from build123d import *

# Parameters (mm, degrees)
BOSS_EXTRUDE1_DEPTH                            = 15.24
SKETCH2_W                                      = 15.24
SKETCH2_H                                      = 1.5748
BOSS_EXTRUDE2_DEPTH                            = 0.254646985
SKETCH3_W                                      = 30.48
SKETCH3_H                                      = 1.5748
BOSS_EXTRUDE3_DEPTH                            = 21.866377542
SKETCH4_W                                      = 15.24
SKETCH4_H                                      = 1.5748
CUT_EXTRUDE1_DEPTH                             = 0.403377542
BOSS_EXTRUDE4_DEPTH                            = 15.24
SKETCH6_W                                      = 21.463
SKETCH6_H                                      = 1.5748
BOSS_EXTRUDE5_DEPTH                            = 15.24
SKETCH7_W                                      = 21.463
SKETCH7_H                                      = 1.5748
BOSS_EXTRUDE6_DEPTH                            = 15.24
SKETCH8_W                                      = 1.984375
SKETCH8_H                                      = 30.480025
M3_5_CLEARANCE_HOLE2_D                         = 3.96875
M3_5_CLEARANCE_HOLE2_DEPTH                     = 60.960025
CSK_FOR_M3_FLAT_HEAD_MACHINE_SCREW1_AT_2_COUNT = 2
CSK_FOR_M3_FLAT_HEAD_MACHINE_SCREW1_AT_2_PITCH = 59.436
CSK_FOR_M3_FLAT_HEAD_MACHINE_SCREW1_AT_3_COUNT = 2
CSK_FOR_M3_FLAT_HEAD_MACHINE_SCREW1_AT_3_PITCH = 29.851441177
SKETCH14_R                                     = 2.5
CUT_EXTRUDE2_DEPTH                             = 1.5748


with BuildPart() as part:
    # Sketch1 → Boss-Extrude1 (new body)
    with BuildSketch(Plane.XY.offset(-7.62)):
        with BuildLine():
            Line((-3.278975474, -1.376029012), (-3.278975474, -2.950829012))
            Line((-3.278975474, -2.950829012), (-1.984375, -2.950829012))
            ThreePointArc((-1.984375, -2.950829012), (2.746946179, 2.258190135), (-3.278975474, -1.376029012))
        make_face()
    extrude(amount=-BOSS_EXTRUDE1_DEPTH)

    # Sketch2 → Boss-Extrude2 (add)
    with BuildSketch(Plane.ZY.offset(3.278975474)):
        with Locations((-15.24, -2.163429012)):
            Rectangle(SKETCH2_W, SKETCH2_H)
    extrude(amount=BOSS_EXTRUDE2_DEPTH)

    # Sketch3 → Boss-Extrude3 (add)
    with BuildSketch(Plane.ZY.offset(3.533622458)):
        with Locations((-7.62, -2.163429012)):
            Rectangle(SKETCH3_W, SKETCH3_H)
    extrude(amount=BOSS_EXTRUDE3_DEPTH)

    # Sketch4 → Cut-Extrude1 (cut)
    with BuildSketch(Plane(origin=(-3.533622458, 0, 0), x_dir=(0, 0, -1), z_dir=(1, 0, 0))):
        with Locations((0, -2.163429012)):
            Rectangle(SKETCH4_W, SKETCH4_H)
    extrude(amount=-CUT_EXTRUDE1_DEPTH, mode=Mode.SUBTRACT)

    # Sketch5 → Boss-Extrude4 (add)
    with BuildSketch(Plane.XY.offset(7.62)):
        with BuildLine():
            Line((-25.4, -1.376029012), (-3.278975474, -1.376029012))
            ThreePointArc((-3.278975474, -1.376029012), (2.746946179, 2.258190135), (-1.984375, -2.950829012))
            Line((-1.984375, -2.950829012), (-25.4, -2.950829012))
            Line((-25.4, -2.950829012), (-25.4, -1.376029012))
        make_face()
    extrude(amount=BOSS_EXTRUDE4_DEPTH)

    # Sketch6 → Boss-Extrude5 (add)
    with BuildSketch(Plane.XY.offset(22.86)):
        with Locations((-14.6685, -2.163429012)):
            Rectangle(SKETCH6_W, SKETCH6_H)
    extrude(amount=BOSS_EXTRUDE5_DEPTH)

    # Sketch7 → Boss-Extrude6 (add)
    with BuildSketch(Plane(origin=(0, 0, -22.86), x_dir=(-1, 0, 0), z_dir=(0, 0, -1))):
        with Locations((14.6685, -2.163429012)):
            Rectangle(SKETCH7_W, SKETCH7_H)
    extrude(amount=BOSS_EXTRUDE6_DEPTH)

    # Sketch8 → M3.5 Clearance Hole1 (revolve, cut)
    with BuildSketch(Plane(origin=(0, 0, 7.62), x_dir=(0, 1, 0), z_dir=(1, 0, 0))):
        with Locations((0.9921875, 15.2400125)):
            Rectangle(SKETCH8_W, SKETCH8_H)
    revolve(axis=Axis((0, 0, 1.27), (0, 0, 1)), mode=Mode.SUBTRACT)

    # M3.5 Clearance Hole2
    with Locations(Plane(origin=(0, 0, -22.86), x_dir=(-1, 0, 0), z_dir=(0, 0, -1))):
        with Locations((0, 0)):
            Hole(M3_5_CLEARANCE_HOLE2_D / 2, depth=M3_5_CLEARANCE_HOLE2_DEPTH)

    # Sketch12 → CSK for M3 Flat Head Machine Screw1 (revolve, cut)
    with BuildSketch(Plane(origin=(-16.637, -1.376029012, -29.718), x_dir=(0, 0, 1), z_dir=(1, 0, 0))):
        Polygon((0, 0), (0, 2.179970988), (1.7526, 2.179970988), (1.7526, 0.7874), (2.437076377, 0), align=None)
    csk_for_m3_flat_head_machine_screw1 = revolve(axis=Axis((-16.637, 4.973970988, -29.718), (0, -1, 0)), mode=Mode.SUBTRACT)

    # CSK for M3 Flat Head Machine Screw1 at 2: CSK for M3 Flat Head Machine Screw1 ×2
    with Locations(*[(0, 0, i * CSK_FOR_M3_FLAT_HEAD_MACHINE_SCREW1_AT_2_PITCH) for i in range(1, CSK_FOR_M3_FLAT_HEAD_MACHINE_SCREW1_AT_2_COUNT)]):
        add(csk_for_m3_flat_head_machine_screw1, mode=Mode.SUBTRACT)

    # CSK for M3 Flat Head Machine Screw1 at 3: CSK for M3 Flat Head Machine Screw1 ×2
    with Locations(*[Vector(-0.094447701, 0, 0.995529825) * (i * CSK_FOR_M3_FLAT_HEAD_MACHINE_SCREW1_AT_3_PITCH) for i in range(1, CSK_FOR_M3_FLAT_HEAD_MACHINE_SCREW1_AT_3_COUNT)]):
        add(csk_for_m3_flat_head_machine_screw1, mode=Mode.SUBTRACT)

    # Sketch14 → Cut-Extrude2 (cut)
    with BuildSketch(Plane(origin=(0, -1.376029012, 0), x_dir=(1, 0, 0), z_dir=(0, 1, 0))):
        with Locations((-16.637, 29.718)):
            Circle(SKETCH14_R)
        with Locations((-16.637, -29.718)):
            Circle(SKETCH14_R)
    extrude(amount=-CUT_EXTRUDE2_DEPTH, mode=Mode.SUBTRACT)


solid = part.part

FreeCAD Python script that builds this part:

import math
import FreeCAD as App
import Part
import Sketcher

V = App.Vector
Q = App.Units.Quantity


def add_polygon(sketch, points):
    """Adds a closed chain of lines whose ends are joined by coincident constraints."""
    first, n = sketch.GeometryCount, len(points)
    for a, b in zip(points, points[1:] + points[:1]):
        sketch.addGeometry(Part.LineSegment(App.Vector(*a, 0), App.Vector(*b, 0)), False)
    for i in range(n):
        sketch.addConstraint(Sketcher.Constraint("Coincident", first + i, 2, first + (i + 1) % n, 1))

doc = App.newDocument("Part")
body = doc.addObject("PartDesign::Body", "Body")

# Sketch on XY plane
sketch1 = body.newObject("Sketcher::SketchObject", "Sketch")
sketch1.AttachmentSupport = (doc.getObject("XY_Plane"), [""])
sketch1.MapMode = "FlatFace"
sketch1.AttachmentOffset = App.Placement(V(0, 0, -0.3 * 25.4), App.Rotation())
sketch1.addGeometry(Part.LineSegment(V(-3.3, -1.4, 0), V(-3.3, -3, 0)), False)
sketch1.addGeometry(Part.LineSegment(V(-3.3, -3, 0), V(-2, -3, 0)), False)
sketch1.addGeometry(Part.ArcOfCircle(Part.Circle(V(0, 0, 0), V(0, 0, 1), 3.6), math.radians(-124), math.radians(203)), False)
sketch1.addConstraint(Sketcher.Constraint("Coincident", 0, 2, 1, 1))
sketch1.addConstraint(Sketcher.Constraint("Coincident", 1, 2, 2, 1))
sketch1.addConstraint(Sketcher.Constraint("Coincident", 2, 2, 0, 1))
sketch1.addConstraint(Sketcher.Constraint("Vertical", 0))
sketch1.addConstraint(Sketcher.Constraint("Horizontal", 1))
sketch1.addConstraint(Sketcher.Constraint("Coincident", 2, 3, -1, 1))
sketch1.addConstraint(Sketcher.Constraint("Radius", 2, Q("0.14 in")))
sketch1.addConstraint(Sketcher.Constraint("DistanceY", 0, 2, 0, 1, Q("0.062 in")))
sketch1.addConstraint(Sketcher.Constraint("DistanceX", 1, 2, -1, 1, Q("0.078125 in")))
pad1 = body.newObject("PartDesign::Pad", "Pad")
pad1.Profile = sketch1
pad1.Length = Q("0.6 in")
pad1.Reversed = True

# Sketch on YZ plane
sketch2 = body.newObject("Sketcher::SketchObject", "Sketch001")
sketch2.AttachmentSupport = (doc.getObject("YZ_Plane"), [""])
sketch2.MapMode = "FlatFace"
sketch2.AttachmentOffset = App.Placement(V(0, 0, -3.278975), App.Rotation())
add_polygon(sketch2, [(-1.4, -22.9), (-3, -22.9), (-3, -7.6), (-1.4, -7.6)])  # lines 0-3
sketch2.addConstraint(Sketcher.Constraint("Horizontal", 0))
sketch2.addConstraint(Sketcher.Constraint("Vertical", 1))
sketch2.addConstraint(Sketcher.Constraint("Horizontal", 2))
sketch2.addConstraint(Sketcher.Constraint("Vertical", 3))
sketch2.addConstraint(Sketcher.Constraint("DistanceY", 1, 1, 1, 2, Q("0.6 in")))
sketch2.addConstraint(Sketcher.Constraint("DistanceY", 0, 2, -1, 1, Q("0.9 in")))
sketch2.addConstraint(Sketcher.Constraint("DistanceX", 0, 2, 0, 1, Q("0.062 in")))
sketch2.addConstraint(Sketcher.Constraint("DistanceX", 0, 2, -1, 1, Q("2.950829 mm")))
pad2 = body.newObject("PartDesign::Pad", "Pad001")
pad2.Profile = sketch2
pad2.Length = 0.254647
pad2.Reversed = True

# Sketch on YZ plane
sketch3 = body.newObject("Sketcher::SketchObject", "Sketch002")
sketch3.AttachmentSupport = (doc.getObject("YZ_Plane"), [""])
sketch3.MapMode = "FlatFace"
sketch3.AttachmentOffset = App.Placement(V(0, 0, -3.533622), App.Rotation())
add_polygon(sketch3, [(-1.4, -22.9), (-3, -22.9), (-3, 7.6), (-1.4, 7.6)])  # lines 0-3
sketch3.addConstraint(Sketcher.Constraint("Horizontal", 0))
sketch3.addConstraint(Sketcher.Constraint("Vertical", 1))
sketch3.addConstraint(Sketcher.Constraint("Horizontal", 2))
sketch3.addConstraint(Sketcher.Constraint("Vertical", 3))
sketch3.addConstraint(Sketcher.Constraint("DistanceY", 1, 1, 1, 2, Q("1.2 in")))
sketch3.addConstraint(Sketcher.Constraint("DistanceY", 0, 2, -1, 1, Q("0.9 in")))
sketch3.addConstraint(Sketcher.Constraint("DistanceX", 0, 2, 0, 1, Q("0.062 in")))
sketch3.addConstraint(Sketcher.Constraint("DistanceX", 0, 2, -1, 1, Q("2.950829 mm")))
pad3 = body.newObject("PartDesign::Pad", "Pad002")
pad3.Profile = sketch3
pad3.Length = 21.866378
pad3.Reversed = True

# Sketch on YZ plane
sketch4 = body.newObject("Sketcher::SketchObject", "Sketch003")
sketch4.AttachmentSupport = (doc.getObject("YZ_Plane"), [""])
sketch4.MapMode = "FlatFace"
sketch4.AttachmentOffset = App.Placement(V(0, 0, -3.533622), App.Rotation())
add_polygon(sketch4, [(-1.4, 7.6), (-3, 7.6), (-3, -7.6), (-1.4, -7.6)])  # lines 0-3
sketch4.addConstraint(Sketcher.Constraint("Horizontal", 0))
sketch4.addConstraint(Sketcher.Constraint("Vertical", 1))
sketch4.addConstraint(Sketcher.Constraint("Horizontal", 2))
sketch4.addConstraint(Sketcher.Constraint("Vertical", 3))
sketch4.addConstraint(Sketcher.Constraint("DistanceY", 1, 2, 1, 1, Q("0.6 in")))
sketch4.addConstraint(Sketcher.Constraint("DistanceY", -1, 1, 0, 2, Q("0.3 in")))
sketch4.addConstraint(Sketcher.Constraint("DistanceX", 0, 2, 0, 1, Q("0.062 in")))
sketch4.addConstraint(Sketcher.Constraint("DistanceX", 0, 2, -1, 1, Q("2.950829 mm")))
pocket1 = body.newObject("PartDesign::Pocket", "Pocket")
pocket1.Profile = sketch4
pocket1.Length = 0.403378

# Sketch on XY plane
sketch5 = body.newObject("Sketcher::SketchObject", "Sketch004")
sketch5.AttachmentSupport = (doc.getObject("XY_Plane"), [""])
sketch5.MapMode = "FlatFace"
sketch5.AttachmentOffset = App.Placement(V(0, 0, 0.3 * 25.4), App.Rotation())
sketch5.addGeometry(Part.LineSegment(V(-3.3, -1.4, 0), V(-25.4, -1.4, 0)), False)
sketch5.addGeometry(Part.LineSegment(V(-25.4, -1.4, 0), V(-25.4, -3, 0)), False)
sketch5.addGeometry(Part.LineSegment(V(-25.4, -3, 0), V(-2, -3, 0)), False)
sketch5.addGeometry(Part.ArcOfCircle(Part.Circle(V(0, 0, 0), V(0, 0, 1), 3.6), math.radians(-124), math.radians(203)), False)
sketch5.addConstraint(Sketcher.Constraint("Coincident", 0, 2, 1, 1))
sketch5.addConstraint(Sketcher.Constraint("Coincident", 1, 2, 2, 1))
sketch5.addConstraint(Sketcher.Constraint("Coincident", 2, 2, 3, 1))
sketch5.addConstraint(Sketcher.Constraint("Coincident", 3, 2, 0, 1))
sketch5.addConstraint(Sketcher.Constraint("Horizontal", 0))
sketch5.addConstraint(Sketcher.Constraint("Vertical", 1))
sketch5.addConstraint(Sketcher.Constraint("Horizontal", 2))
sketch5.addConstraint(Sketcher.Constraint("Coincident", 3, 3, -1, 1))
sketch5.addConstraint(Sketcher.Constraint("Radius", 3, Q("0.14 in")))
sketch5.addConstraint(Sketcher.Constraint("DistanceX", 0, 2, -1, 1, Q("1 in")))
sketch5.addConstraint(Sketcher.Constraint("DistanceX", 2, 1, 2, 2, Q("0.921875 in")))
sketch5.addConstraint(Sketcher.Constraint("DistanceY", 1, 2, 1, 1, Q("0.062 in")))
pad4 = body.newObject("PartDesign::Pad", "Pad003")
pad4.Profile = sketch5
pad4.Length = Q("0.6 in")

# Sketch on XY plane
sketch6 = body.newObject("Sketcher::SketchObject", "Sketch005")
sketch6.AttachmentSupport = (doc.getObject("XY_Plane"), [""])
sketch6.MapMode = "FlatFace"
sketch6.AttachmentOffset = App.Placement(V(0, 0, 0.9 * 25.4), App.Rotation())
add_polygon(sketch6, [(-25.4, -1.4), (-25.4, -3), (-3.9, -3), (-3.9, -1.4)])  # lines 0-3
sketch6.addConstraint(Sketcher.Constraint("Vertical", 0))
sketch6.addConstraint(Sketcher.Constraint("Horizontal", 1))
sketch6.addConstraint(Sketcher.Constraint("Vertical", 2))
sketch6.addConstraint(Sketcher.Constraint("Horizontal", 3))
sketch6.addConstraint(Sketcher.Constraint("DistanceX", 0, 2, -1, 1, Q("1 in")))
sketch6.addConstraint(Sketcher.Constraint("DistanceX", 1, 1, 1, 2, Q("0.845 in")))
sketch6.addConstraint(Sketcher.Constraint("DistanceY", 0, 2, 0, 1, Q("0.062 in")))
sketch6.addConstraint(Sketcher.Constraint("DistanceY", 0, 2, -1, 1, Q("2.950829 mm")))
pad5 = body.newObject("PartDesign::Pad", "Pad004")
pad5.Profile = sketch6
pad5.Length = Q("0.6 in")

# Sketch on XY plane
sketch7 = body.newObject("Sketcher::SketchObject", "Sketch006")
sketch7.AttachmentSupport = (doc.getObject("XY_Plane"), [""])
sketch7.MapMode = "FlatFace"
sketch7.AttachmentOffset = App.Placement(V(0, 0, -0.9 * 25.4), App.Rotation())
add_polygon(sketch7, [(-3.9, -1.4), (-3.9, -3), (-25.4, -3), (-25.4, -1.4)])  # lines 0-3
sketch7.addConstraint(Sketcher.Constraint("Vertical", 0))
sketch7.addConstraint(Sketcher.Constraint("Horizontal", 1))
sketch7.addConstraint(Sketcher.Constraint("Vertical", 2))
sketch7.addConstraint(Sketcher.Constraint("Horizontal", 3))
sketch7.addConstraint(Sketcher.Constraint("DistanceX", 1, 2, -1, 1, Q("1 in")))
sketch7.addConstraint(Sketcher.Constraint("DistanceX", 1, 2, 1, 1, Q("0.845 in")))
sketch7.addConstraint(Sketcher.Constraint("DistanceY", 0, 2, 0, 1, Q("0.062 in")))
sketch7.addConstraint(Sketcher.Constraint("DistanceY", 0, 2, -1, 1, Q("2.950829 mm")))
pad6 = body.newObject("PartDesign::Pad", "Pad005")
pad6.Profile = sketch7
pad6.Length = Q("0.6 in")
pad6.Reversed = True

# Sketch on YZ plane
sketch8 = body.newObject("Sketcher::SketchObject", "Sketch007")
sketch8.AttachmentSupport = (doc.getObject("YZ_Plane"), [""])
sketch8.MapMode = "FlatFace"
add_polygon(sketch8, [(0, 38.100025), (0, 7.62), (1.984375, 7.62), (1.984375, 38.100025)])  # lines 0-3
sketch8.addConstraint(Sketcher.Constraint("Vertical", 0))
sketch8.addConstraint(Sketcher.Constraint("Horizontal", 1))
sketch8.addConstraint(Sketcher.Constraint("Vertical", 2))
sketch8.addConstraint(Sketcher.Constraint("Horizontal", 3))
sketch8.addConstraint(Sketcher.Constraint("PointOnObject", 0, 2, -2))
sketch8.addConstraint(Sketcher.Constraint("DistanceY", -1, 1, 0, 2, Q("0.3 in")))
sketch8.addConstraint(Sketcher.Constraint("DistanceX", 1, 1, 1, 2, Q("0.078125 in")))
sketch8.addConstraint(Sketcher.Constraint("DistanceY", 0, 2, 0, 1, Q("30.480025 mm")))
groove = body.newObject("PartDesign::Groove", "Groove")
groove.Profile = sketch8
groove.ReferenceAxis = (sketch8, ["V_Axis"])
groove.Angle = 360

# Sketch on XY plane
sketch9 = body.newObject("Sketcher::SketchObject", "Sketch008")
sketch9.AttachmentSupport = (doc.getObject("XY_Plane"), [""])
sketch9.MapMode = "FlatFace"
sketch9.AttachmentOffset = App.Placement(V(0, 0, -0.9 * 25.4), App.Rotation())
sketch9.addGeometry(Part.Circle(V(0, 0, 0), V(0, 0, 1), 2), False)
sketch9.addConstraint(Sketcher.Constraint("Coincident", 0, 3, -1, 1))
sketch9.addConstraint(Sketcher.Constraint("Diameter", 0, Q("0.15625 in")))
doc.recompute()
hole = body.newObject("PartDesign::Hole", "Hole")
hole.Profile = sketch9
hole.ThreadType = "None"
hole.Diameter = Q("0.15625 in")
hole.DepthType = "Dimension"
hole.Depth = 60.960025
hole.DrillPoint = "Flat"
hole.Reversed = True

# Sketch on YZ plane
sketch10 = body.newObject("Sketcher::SketchObject", "Sketch009")
sketch10.AttachmentSupport = (doc.getObject("YZ_Plane"), [""])
sketch10.MapMode = "FlatFace"
sketch10.AttachmentOffset = App.Placement(V(0, 0, -0.655 * 25.4), App.Rotation())
add_polygon(sketch10, [(-3.6, -29.7), (-1.4, -29.7), (-1.4, -27.3), (-2.2, -28), (-3.6, -28)])  # lines 0-4
sketch10.addGeometry(Part.LineSegment(V(-1.4, -29.7, 0), V(-3.6, -29.7, 0)), True)  # axis
sketch10.addConstraint(Sketcher.Constraint("Horizontal", 0))
sketch10.addConstraint(Sketcher.Constraint("Vertical", 1))
sketch10.addConstraint(Sketcher.Constraint("Horizontal", 3))
sketch10.addConstraint(Sketcher.Constraint("Vertical", 4))
sketch10.addConstraint(Sketcher.Constraint("Horizontal", 5))
sketch10.addConstraint(Sketcher.Constraint("Coincident", 5, 1, 0, 2))
sketch10.addConstraint(Sketcher.Constraint("Vertical", 3, 2, 5, 2))
sketch10.addConstraint(Sketcher.Constraint("Angle", 2, Q("-139 deg")))
sketch10.addConstraint(Sketcher.Constraint("DistanceY", 4, 2, 4, 1, Q("0.069 in")))
sketch10.addConstraint(Sketcher.Constraint("DistanceY", 0, 2, -1, 1, Q("1.17 in")))
sketch10.addConstraint(Sketcher.Constraint("DistanceX", 3, 2, -1, 1, Q("0.14 in")))
sketch10.addConstraint(Sketcher.Constraint("DistanceX", 2, 2, 1, 2, Q("0.031 in")))
sketch10.addConstraint(Sketcher.Constraint("DistanceX", 0, 1, 0, 2, Q("2.179971 mm")))
groove2 = body.newObject("PartDesign::Groove", "Groove001")
groove2.Profile = sketch10
groove2.ReferenceAxis = (sketch10, ["Axis0"])
groove2.Angle = 360
doc.recompute()

linearpattern = body.newObject("PartDesign::LinearPattern", "LinearPattern")
linearpattern.Originals = [groove2]
linearpattern.Direction = (doc.getObject("Z_Axis"), [""])
linearpattern.Mode = "offset"
linearpattern.Offset = Q("2.34 in")
linearpattern.Occurrences = 2
body.Tip = linearpattern
doc.recompute()

datumline = body.newObject("PartDesign::Line", "DatumLine")
datumline.Placement = App.Placement(V(0, 0, 0), App.Rotation(V(0, 0, 1), V(-0.094447701, 0, 0.995529825)))
linearpattern2 = body.newObject("PartDesign::LinearPattern", "LinearPattern001")
linearpattern2.Originals = [groove2]
linearpattern2.Direction = (datumline, [""])
linearpattern2.Mode = "offset"
linearpattern2.Offset = 29.851441
linearpattern2.Occurrences = 2
body.Tip = linearpattern2

# Sketch on XZ plane
sketch11 = body.newObject("Sketcher::SketchObject", "Sketch010")
sketch11.AttachmentSupport = (doc.getObject("XZ_Plane"), [""])
sketch11.MapMode = "FlatFace"
sketch11.AttachmentOffset = App.Placement(V(0, 0, 1.376029), App.Rotation())
sketch11.addGeometry(Part.Circle(V(-16.6, -29.7, 0), V(0, 0, 1), 2.5), False)
sketch11.addGeometry(Part.Circle(V(-16.6, 29.7, 0), V(0, 0, 1), 2.5), False)
sketch11.addConstraint(Sketcher.Constraint("Equal", 0, 1))
sketch11.addConstraint(Sketcher.Constraint("Symmetric", 0, 3, 1, 3, -1))
sketch11.addConstraint(Sketcher.Constraint("Diameter", 0, Q("5 mm")))
sketch11.addConstraint(Sketcher.Constraint("DistanceY", 0, 3, -1, 1, Q("1.17 in")))
sketch11.addConstraint(Sketcher.Constraint("DistanceX", 0, 3, -1, 1, Q("0.655 in")))
pocket2 = body.newObject("PartDesign::Pocket", "Pocket001")
pocket2.Profile = sketch11
pocket2.Length = Q("0.062 in")
pocket2.Reversed = True

doc.recompute()
